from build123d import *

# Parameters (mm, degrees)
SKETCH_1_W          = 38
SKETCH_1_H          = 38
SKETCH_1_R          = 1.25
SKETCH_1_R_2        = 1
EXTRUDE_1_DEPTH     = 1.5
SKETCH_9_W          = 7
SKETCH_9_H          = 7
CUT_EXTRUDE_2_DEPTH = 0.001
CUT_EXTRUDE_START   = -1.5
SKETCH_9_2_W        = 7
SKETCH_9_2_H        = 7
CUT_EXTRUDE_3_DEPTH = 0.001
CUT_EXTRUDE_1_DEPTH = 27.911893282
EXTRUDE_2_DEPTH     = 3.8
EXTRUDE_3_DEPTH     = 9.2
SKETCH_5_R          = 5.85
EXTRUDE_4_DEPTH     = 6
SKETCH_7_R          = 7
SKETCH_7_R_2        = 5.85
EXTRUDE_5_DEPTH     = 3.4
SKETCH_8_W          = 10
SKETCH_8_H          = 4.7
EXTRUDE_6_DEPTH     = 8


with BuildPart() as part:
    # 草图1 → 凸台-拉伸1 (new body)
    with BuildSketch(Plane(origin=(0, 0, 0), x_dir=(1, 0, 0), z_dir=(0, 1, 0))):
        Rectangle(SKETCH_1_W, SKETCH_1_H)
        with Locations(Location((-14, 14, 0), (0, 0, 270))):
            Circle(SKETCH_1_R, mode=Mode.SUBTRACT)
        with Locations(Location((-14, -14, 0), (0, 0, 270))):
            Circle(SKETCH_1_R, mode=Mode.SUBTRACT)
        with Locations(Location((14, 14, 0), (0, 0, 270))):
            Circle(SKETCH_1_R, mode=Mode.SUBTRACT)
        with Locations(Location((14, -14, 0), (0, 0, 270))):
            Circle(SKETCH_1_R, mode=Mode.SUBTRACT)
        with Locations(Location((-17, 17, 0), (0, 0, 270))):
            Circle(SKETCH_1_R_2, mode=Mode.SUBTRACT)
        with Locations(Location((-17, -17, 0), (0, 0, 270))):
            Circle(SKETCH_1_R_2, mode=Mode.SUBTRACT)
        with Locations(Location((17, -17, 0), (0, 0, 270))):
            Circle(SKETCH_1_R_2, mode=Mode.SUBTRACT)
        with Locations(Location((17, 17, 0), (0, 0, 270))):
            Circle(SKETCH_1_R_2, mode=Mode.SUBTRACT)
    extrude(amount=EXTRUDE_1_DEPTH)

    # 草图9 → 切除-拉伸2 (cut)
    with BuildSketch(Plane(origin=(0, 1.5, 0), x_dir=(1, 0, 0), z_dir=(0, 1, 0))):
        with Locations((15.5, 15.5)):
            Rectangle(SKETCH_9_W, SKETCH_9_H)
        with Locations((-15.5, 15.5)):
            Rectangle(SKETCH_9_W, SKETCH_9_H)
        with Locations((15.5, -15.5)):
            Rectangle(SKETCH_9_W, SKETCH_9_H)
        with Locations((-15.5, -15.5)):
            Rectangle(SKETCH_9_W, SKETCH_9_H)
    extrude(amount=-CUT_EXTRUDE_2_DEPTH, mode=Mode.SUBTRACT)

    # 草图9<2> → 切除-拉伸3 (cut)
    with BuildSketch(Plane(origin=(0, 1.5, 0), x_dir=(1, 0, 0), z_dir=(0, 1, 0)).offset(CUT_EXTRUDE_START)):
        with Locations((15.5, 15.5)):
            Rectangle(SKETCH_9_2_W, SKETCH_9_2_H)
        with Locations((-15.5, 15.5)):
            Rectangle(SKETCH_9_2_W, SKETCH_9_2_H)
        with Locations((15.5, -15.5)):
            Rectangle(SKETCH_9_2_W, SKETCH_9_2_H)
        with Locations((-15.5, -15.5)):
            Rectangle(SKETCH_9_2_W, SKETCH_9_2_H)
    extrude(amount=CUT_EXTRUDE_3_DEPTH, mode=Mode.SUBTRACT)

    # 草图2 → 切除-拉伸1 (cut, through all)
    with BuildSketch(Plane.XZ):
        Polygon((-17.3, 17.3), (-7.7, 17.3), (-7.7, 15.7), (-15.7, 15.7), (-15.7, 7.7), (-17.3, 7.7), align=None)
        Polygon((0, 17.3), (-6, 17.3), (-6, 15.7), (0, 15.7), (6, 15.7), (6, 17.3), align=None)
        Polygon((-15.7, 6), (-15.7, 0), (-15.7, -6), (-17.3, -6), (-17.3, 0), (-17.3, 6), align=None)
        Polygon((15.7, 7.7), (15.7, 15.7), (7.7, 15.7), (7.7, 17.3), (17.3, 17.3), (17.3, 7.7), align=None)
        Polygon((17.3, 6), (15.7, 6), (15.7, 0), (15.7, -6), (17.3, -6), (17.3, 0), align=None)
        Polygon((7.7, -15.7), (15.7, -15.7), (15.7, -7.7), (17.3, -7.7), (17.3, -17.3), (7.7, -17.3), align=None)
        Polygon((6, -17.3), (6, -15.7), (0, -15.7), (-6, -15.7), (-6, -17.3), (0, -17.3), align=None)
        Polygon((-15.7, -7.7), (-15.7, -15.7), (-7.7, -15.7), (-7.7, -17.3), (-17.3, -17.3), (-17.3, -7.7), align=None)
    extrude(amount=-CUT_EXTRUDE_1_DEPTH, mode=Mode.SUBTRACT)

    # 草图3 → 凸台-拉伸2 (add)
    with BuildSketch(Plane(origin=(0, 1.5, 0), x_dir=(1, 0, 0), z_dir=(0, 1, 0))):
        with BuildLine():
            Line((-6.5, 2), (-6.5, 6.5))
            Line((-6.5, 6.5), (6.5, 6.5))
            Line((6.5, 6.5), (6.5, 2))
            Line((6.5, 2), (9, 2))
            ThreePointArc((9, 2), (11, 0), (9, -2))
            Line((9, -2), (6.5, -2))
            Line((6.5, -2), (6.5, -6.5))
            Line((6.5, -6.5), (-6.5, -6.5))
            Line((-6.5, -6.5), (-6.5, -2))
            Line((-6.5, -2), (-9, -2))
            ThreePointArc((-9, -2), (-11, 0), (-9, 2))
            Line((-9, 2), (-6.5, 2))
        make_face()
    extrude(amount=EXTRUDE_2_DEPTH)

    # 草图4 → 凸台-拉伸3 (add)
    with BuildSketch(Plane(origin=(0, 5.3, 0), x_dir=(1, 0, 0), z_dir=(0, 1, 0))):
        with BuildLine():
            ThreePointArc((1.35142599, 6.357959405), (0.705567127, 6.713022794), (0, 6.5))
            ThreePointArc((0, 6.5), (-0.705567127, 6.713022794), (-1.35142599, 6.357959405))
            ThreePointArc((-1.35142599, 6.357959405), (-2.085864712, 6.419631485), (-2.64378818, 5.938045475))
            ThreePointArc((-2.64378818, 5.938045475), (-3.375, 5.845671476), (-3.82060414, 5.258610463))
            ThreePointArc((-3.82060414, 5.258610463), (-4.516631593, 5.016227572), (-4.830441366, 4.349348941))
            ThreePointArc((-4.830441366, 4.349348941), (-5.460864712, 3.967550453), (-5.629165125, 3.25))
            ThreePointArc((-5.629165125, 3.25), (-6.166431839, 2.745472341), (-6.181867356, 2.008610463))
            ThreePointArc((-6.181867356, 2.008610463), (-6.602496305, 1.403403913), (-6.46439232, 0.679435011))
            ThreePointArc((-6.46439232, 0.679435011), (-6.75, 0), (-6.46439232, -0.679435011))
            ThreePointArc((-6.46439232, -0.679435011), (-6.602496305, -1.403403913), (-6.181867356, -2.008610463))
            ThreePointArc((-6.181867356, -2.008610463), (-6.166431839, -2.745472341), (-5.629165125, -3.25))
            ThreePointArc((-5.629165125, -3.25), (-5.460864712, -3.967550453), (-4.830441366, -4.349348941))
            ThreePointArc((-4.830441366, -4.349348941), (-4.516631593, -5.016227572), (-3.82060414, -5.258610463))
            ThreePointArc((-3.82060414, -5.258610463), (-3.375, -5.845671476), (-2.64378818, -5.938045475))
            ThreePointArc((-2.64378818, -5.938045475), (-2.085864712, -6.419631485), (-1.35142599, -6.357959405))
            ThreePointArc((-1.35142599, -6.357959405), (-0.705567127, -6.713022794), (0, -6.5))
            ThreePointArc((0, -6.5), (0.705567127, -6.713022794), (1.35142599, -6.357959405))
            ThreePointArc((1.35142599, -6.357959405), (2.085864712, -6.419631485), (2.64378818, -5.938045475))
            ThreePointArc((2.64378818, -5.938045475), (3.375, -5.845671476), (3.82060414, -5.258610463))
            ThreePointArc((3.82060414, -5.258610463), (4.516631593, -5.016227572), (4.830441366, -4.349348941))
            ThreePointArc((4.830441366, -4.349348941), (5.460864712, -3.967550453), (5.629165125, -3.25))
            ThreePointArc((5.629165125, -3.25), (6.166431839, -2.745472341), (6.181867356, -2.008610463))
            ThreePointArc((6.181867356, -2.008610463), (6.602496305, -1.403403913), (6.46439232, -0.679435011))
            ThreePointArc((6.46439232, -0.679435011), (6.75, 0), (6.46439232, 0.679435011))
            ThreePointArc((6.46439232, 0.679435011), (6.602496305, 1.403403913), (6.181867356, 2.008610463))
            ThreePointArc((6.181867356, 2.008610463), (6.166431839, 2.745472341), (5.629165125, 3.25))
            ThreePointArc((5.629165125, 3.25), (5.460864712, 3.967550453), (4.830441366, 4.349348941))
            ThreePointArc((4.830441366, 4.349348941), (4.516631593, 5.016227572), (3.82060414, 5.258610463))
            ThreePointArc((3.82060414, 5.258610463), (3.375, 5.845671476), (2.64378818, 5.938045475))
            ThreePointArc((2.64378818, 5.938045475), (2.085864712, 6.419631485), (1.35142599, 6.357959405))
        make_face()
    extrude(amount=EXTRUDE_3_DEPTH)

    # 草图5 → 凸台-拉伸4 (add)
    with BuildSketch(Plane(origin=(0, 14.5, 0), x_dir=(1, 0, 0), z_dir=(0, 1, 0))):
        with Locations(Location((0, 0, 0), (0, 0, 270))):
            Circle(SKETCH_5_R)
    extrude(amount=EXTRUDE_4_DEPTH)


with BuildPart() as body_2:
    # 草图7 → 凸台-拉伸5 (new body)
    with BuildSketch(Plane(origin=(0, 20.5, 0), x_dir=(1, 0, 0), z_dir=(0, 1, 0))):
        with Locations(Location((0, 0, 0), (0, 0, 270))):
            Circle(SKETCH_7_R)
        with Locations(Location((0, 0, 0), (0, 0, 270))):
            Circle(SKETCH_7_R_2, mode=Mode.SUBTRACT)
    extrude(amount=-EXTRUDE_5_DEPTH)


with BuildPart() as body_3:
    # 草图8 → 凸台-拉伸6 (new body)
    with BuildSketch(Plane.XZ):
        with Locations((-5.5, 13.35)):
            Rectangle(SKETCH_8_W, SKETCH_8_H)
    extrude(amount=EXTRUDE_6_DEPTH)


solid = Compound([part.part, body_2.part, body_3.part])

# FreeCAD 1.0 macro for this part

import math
import FreeCAD as App
import Part
import Sketcher
from FreeCAD import Vector

doc = App.newDocument("Part")
body = doc.addObject("PartDesign::Body", "Body")

sketch1 = body.newObject("Sketcher::SketchObject", "Sketch")
sketch1.AttachmentSupport = (doc.getObject("XZ_Plane"), [""])
sketch1.MapMode = "FlatFace"
sketch1.addGeometry(Part.LineSegment(Vector(-19, -19, 0), Vector(-19, 19, 0)), False)
sketch1.addGeometry(Part.LineSegment(Vector(-19, 19, 0), Vector(19, 19, 0)), False)
sketch1.addGeometry(Part.LineSegment(Vector(19, 19, 0), Vector(19, -19, 0)), False)
sketch1.addGeometry(Part.LineSegment(Vector(19, -19, 0), Vector(-19, -19, 0)), False)
sketch1.addGeometry(Part.Circle(Vector(-17, 17, 0), Vector(0, 0, 1), 1), False)
sketch1.addGeometry(Part.Circle(Vector(-14, 14, 0), Vector(0, 0, 1), 1.25), False)
sketch1.addGeometry(Part.Circle(Vector(17, 17, 0), Vector(0, 0, 1), 1), False)
sketch1.addGeometry(Part.Circle(Vector(14, 14, 0), Vector(0, 0, 1), 1.25), False)
sketch1.addGeometry(Part.Circle(Vector(-14, -14, 0), Vector(0, 0, 1), 1.25), False)
sketch1.addGeometry(Part.Circle(Vector(-17, -17, 0), Vector(0, 0, 1), 1), False)
sketch1.addGeometry(Part.Circle(Vector(14, -14, 0), Vector(0, 0, 1), 1.25), False)
sketch1.addGeometry(Part.Circle(Vector(17, -17, 0), Vector(0, 0, 1), 1), False)
sketch1.addConstraint(Sketcher.Constraint("Coincident", 0, 2, 1, 1))
sketch1.addConstraint(Sketcher.Constraint("Coincident", 1, 2, 2, 1))
sketch1.addConstraint(Sketcher.Constraint("Coincident", 2, 2, 3, 1))
sketch1.addConstraint(Sketcher.Constraint("Coincident", 3, 2, 0, 1))
sketch1.addConstraint(Sketcher.Constraint("Vertical", 0))
sketch1.addConstraint(Sketcher.Constraint("Horizontal", 1))
sketch1.addConstraint(Sketcher.Constraint("Vertical", 2))
sketch1.addConstraint(Sketcher.Constraint("Horizontal", 3))
sketch1.addConstraint(Sketcher.Constraint("Equal", 4, 6))
sketch1.addConstraint(Sketcher.Constraint("Equal", 5, 7))
sketch1.addConstraint(Sketcher.Constraint("Equal", 7, 8))
sketch1.addConstraint(Sketcher.Constraint("Equal", 6, 9))
sketch1.addConstraint(Sketcher.Constraint("Equal", 8, 10))
sketch1.addConstraint(Sketcher.Constraint("Equal", 9, 11))
sketch1.addConstraint(Sketcher.Constraint("Symmetric", 7, 3, 8, 3, -1, 1))
sketch1.addConstraint(Sketcher.Constraint("Symmetric", 6, 3, 9, 3, -1, 1))
sketch1.addConstraint(Sketcher.Constraint("Symmetric", 5, 3, 10, 3, -1, 1))
sketch1.addConstraint(Sketcher.Constraint("Symmetric", 4, 3, 11, 3, -1, 1))
sketch1.addConstraint(Sketcher.Constraint("Symmetric", 0, 2, 2, 2, -1, 1))
sketch1.addConstraint(Sketcher.Constraint("Symmetric", 4, 3, 6, 3, -2))
sketch1.addConstraint(Sketcher.Constraint("Symmetric", 5, 3, 7, 3, -2))
sketch1.addConstraint(Sketcher.Constraint("Equal", 3, 0))
sketch1.addConstraint(Sketcher.Constraint("Diameter", 4, 2.0))
sketch1.addConstraint(Sketcher.Constraint("Diameter", 5, 2.5))
sketch1.addConstraint(Sketcher.Constraint("DistanceX", 1, 1, 1, 2, 38.0))
sketch1.addConstraint(Sketcher.Constraint("DistanceX", 4, 3, -1, 1, 17.0))
sketch1.addConstraint(Sketcher.Constraint("DistanceY", -1, 1, 4, 3, 17.0))
sketch1.addConstraint(Sketcher.Constraint("DistanceX", 5, 3, -1, 1, 14.0))
sketch1.addConstraint(Sketcher.Constraint("DistanceY", -1, 1, 5, 3, 14.0))
pad1 = body.newObject("PartDesign::Pad", "Pad")
pad1.Profile = sketch1
pad1.Length = 1.5
pad1.Reversed = True

sketch2 = body.newObject("Sketcher::SketchObject", "Sketch001")
sketch2.AttachmentSupport = (doc.getObject("XZ_Plane"), [""])
sketch2.MapMode = "FlatFace"
sketch2.AttachmentOffset = App.Placement(Vector(0, 0, -1.5), App.Rotation())
sketch2.addGeometry(Part.LineSegment(Vector(12, -19, 0), Vector(12, -12, 0)), False)
sketch2.addGeometry(Part.LineSegment(Vector(12, -12, 0), Vector(19, -12, 0)), False)
sketch2.addGeometry(Part.LineSegment(Vector(19, -12, 0), Vector(19, -19, 0)), False)
sketch2.addGeometry(Part.LineSegment(Vector(19, -19, 0), Vector(12, -19, 0)), False)
sketch2.addGeometry(Part.LineSegment(Vector(-19, -19, 0), Vector(-19, -12, 0)), False)
sketch2.addGeometry(Part.LineSegment(Vector(-19, -12, 0), Vector(-12, -12, 0)), False)
sketch2.addGeometry(Part.LineSegment(Vector(-12, -12, 0), Vector(-12, -19, 0)), False)
sketch2.addGeometry(Part.LineSegment(Vector(-12, -19, 0), Vector(-19, -19, 0)), False)
sketch2.addGeometry(Part.LineSegment(Vector(12, 12, 0), Vector(12, 19, 0)), False)
sketch2.addGeometry(Part.LineSegment(Vector(12, 19, 0), Vector(19, 19, 0)), False)
sketch2.addGeometry(Part.LineSegment(Vector(19, 19, 0), Vector(19, 12, 0)), False)
sketch2.addGeometry(Part.LineSegment(Vector(19, 12, 0), Vector(12, 12, 0)), False)
sketch2.addGeometry(Part.LineSegment(Vector(-19, 12, 0), Vector(-19, 19, 0)), False)
sketch2.addGeometry(Part.LineSegment(Vector(-19, 19, 0), Vector(-12, 19, 0)), False)
sketch2.addGeometry(Part.LineSegment(Vector(-12, 19, 0), Vector(-12, 12, 0)), False)
sketch2.addGeometry(Part.LineSegment(Vector(-12, 12, 0), Vector(-19, 12, 0)), False)
sketch2.addConstraint(Sketcher.Constraint("Coincident", 0, 2, 1, 1))
sketch2.addConstraint(Sketcher.Constraint("Coincident", 1, 2, 2, 1))
sketch2.addConstraint(Sketcher.Constraint("Coincident", 2, 2, 3, 1))
sketch2.addConstraint(Sketcher.Constraint("Coincident", 3, 2, 0, 1))
sketch2.addConstraint(Sketcher.Constraint("Coincident", 4, 2, 5, 1))
sketch2.addConstraint(Sketcher.Constraint("Coincident", 5, 2, 6, 1))
sketch2.addConstraint(Sketcher.Constraint("Coincident", 6, 2, 7, 1))
sketch2.addConstraint(Sketcher.Constraint("Coincident", 7, 2, 4, 1))
sketch2.addConstraint(Sketcher.Constraint("Coincident", 8, 2, 9, 1))
sketch2.addConstraint(Sketcher.Constraint("Coincident", 9, 2, 10, 1))
sketch2.addConstraint(Sketcher.Constraint("Coincident", 10, 2, 11, 1))
sketch2.addConstraint(Sketcher.Constraint("Coincident", 11, 2, 8, 1))
sketch2.addConstraint(Sketcher.Constraint("Coincident", 12, 2, 13, 1))
sketch2.addConstraint(Sketcher.Constraint("Coincident", 13, 2, 14, 1))
sketch2.addConstraint(Sketcher.Constraint("Coincident", 14, 2, 15, 1))
sketch2.addConstraint(Sketcher.Constraint("Coincident", 15, 2, 12, 1))
sketch2.addConstraint(Sketcher.Constraint("Vertical", 0))
sketch2.addConstraint(Sketcher.Constraint("Horizontal", 1))
sketch2.addConstraint(Sketcher.Constraint("Vertical", 2))
sketch2.addConstraint(Sketcher.Constraint("Horizontal", 3))
sketch2.addConstraint(Sketcher.Constraint("Vertical", 4))
sketch2.addConstraint(Sketcher.Constraint("Horizontal", 5))
sketch2.addConstraint(Sketcher.Constraint("Vertical", 6))
sketch2.addConstraint(Sketcher.Constraint("Horizontal", 7))
sketch2.addConstraint(Sketcher.Constraint("Vertical", 8))
sketch2.addConstraint(Sketcher.Constraint("Horizontal", 9))
sketch2.addConstraint(Sketcher.Constraint("Vertical", 10))
sketch2.addConstraint(Sketcher.Constraint("Horizontal", 11))
sketch2.addConstraint(Sketcher.Constraint("Vertical", 12))
sketch2.addConstraint(Sketcher.Constraint("Horizontal", 13))
sketch2.addConstraint(Sketcher.Constraint("Vertical", 14))
sketch2.addConstraint(Sketcher.Constraint("Horizontal", 15))
sketch2.addConstraint(Sketcher.Constraint("Symmetric", 6, 2, 8, 2, -1, 1))
sketch2.addConstraint(Sketcher.Constraint("Symmetric", 4, 2, 10, 2, -1, 1))
sketch2.addConstraint(Sketcher.Constraint("Symmetric", 2, 2, 12, 2, -1, 1))
sketch2.addConstraint(Sketcher.Constraint("Symmetric", 0, 2, 14, 2, -1, 1))
sketch2.addConstraint(Sketcher.Constraint("Symmetric", 1, 2, 4, 2, -2))
sketch2.addConstraint(Sketcher.Constraint("Symmetric", 3, 2, 6, 2, -2))
sketch2.addConstraint(Sketcher.Constraint("Equal", 15, 0))
sketch2.addConstraint(Sketcher.Constraint("DistanceX", 1, 1, 1, 2, 7.0))
sketch2.addConstraint(Sketcher.Constraint("DistanceX", -1, 1, 0, 2, 12.0))
sketch2.addConstraint(Sketcher.Constraint("DistanceY", 0, 2, -1, 1, 12.0))
pocket1 = body.newObject("PartDesign::Pocket", "Pocket")
pocket1.Profile = sketch2
pocket1.Length = 0.001
pocket1.Reversed = True

sketch3 = body.newObject("Sketcher::SketchObject", "Sketch002")
sketch3.AttachmentSupport = (doc.getObject("XZ_Plane"), [""])
sketch3.MapMode = "FlatFace"
sketch3.addGeometry(Part.LineSegment(Vector(12, -19, 0), Vector(12, -12, 0)), False)
sketch3.addGeometry(Part.LineSegment(Vector(12, -12, 0), Vector(19, -12, 0)), False)
sketch3.addGeometry(Part.LineSegment(Vector(19, -12, 0), Vector(19, -19, 0)), False)
sketch3.addGeometry(Part.LineSegment(Vector(19, -19, 0), Vector(12, -19, 0)), False)
sketch3.addGeometry(Part.LineSegment(Vector(-19, -19, 0), Vector(-19, -12, 0)), False)
sketch3.addGeometry(Part.LineSegment(Vector(-19, -12, 0), Vector(-12, -12, 0)), False)
sketch3.addGeometry(Part.LineSegment(Vector(-12, -12, 0), Vector(-12, -19, 0)), False)
sketch3.addGeometry(Part.LineSegment(Vector(-12, -19, 0), Vector(-19, -19, 0)), False)
sketch3.addGeometry(Part.LineSegment(Vector(12, 12, 0), Vector(12, 19, 0)), False)
sketch3.addGeometry(Part.LineSegment(Vector(12, 19, 0), Vector(19, 19, 0)), False)
sketch3.addGeometry(Part.LineSegment(Vector(19, 19, 0), Vector(19, 12, 0)), False)
sketch3.addGeometry(Part.LineSegment(Vector(19, 12, 0), Vector(12, 12, 0)), False)
sketch3.addGeometry(Part.LineSegment(Vector(-19, 12, 0), Vector(-19, 19, 0)), False)
sketch3.addGeometry(Part.LineSegment(Vector(-19, 19, 0), Vector(-12, 19, 0)), False)
sketch3.addGeometry(Part.LineSegment(Vector(-12, 19, 0), Vector(-12, 12, 0)), False)
sketch3.addGeometry(Part.LineSegment(Vector(-12, 12, 0), Vector(-19, 12, 0)), False)
sketch3.addConstraint(Sketcher.Constraint("Coincident", 0, 2, 1, 1))
sketch3.addConstraint(Sketcher.Constraint("Coincident", 1, 2, 2, 1))
sketch3.addConstraint(Sketcher.Constraint("Coincident", 2, 2, 3, 1))
sketch3.addConstraint(Sketcher.Constraint("Coincident", 3, 2, 0, 1))
sketch3.addConstraint(Sketcher.Constraint("Coincident", 4, 2, 5, 1))
sketch3.addConstraint(Sketcher.Constraint("Coincident", 5, 2, 6, 1))
sketch3.addConstraint(Sketcher.Constraint("Coincident", 6, 2, 7, 1))
sketch3.addConstraint(Sketcher.Constraint("Coincident", 7, 2, 4, 1))
sketch3.addConstraint(Sketcher.Constraint("Coincident", 8, 2, 9, 1))
sketch3.addConstraint(Sketcher.Constraint("Coincident", 9, 2, 10, 1))
sketch3.addConstraint(Sketcher.Constraint("Coincident", 10, 2, 11, 1))
sketch3.addConstraint(Sketcher.Constraint("Coincident", 11, 2, 8, 1))
sketch3.addConstraint(Sketcher.Constraint("Coincident", 12, 2, 13, 1))
sketch3.addConstraint(Sketcher.Constraint("Coincident", 13, 2, 14, 1))
sketch3.addConstraint(Sketcher.Constraint("Coincident", 14, 2, 15, 1))
sketch3.addConstraint(Sketcher.Constraint("Coincident", 15, 2, 12, 1))
sketch3.addConstraint(Sketcher.Constraint("Vertical", 0))
sketch3.addConstraint(Sketcher.Constraint("Horizontal", 1))
sketch3.addConstraint(Sketcher.Constraint("Vertical", 2))
sketch3.addConstraint(Sketcher.Constraint("Horizontal", 3))
sketch3.addConstraint(Sketcher.Constraint("Vertical", 4))
sketch3.addConstraint(Sketcher.Constraint("Horizontal", 5))
sketch3.addConstraint(Sketcher.Constraint("Vertical", 6))
sketch3.addConstraint(Sketcher.Constraint("Horizontal", 7))
sketch3.addConstraint(Sketcher.Constraint("Vertical", 8))
sketch3.addConstraint(Sketcher.Constraint("Horizontal", 9))
sketch3.addConstraint(Sketcher.Constraint("Vertical", 10))
sketch3.addConstraint(Sketcher.Constraint("Horizontal", 11))
sketch3.addConstraint(Sketcher.Constraint("Vertical", 12))
sketch3.addConstraint(Sketcher.Constraint("Horizontal", 13))
sketch3.addConstraint(Sketcher.Constraint("Vertical", 14))
sketch3.addConstraint(Sketcher.Constraint("Horizontal", 15))
sketch3.addConstraint(Sketcher.Constraint("Symmetric", 6, 2, 8, 2, -1, 1))
sketch3.addConstraint(Sketcher.Constraint("Symmetric", 4, 2, 10, 2, -1, 1))
sketch3.addConstraint(Sketcher.Constraint("Symmetric", 2, 2, 12, 2, -1, 1))
sketch3.addConstraint(Sketcher.Constraint("Symmetric", 0, 2, 14, 2, -1, 1))
sketch3.addConstraint(Sketcher.Constraint("Symmetric", 1, 2, 4, 2, -2))
sketch3.addConstraint(Sketcher.Constraint("Symmetric", 3, 2, 6, 2, -2))
sketch3.addConstraint(Sketcher.Constraint("Equal", 15, 0))
sketch3.addConstraint(Sketcher.Constraint("DistanceX", 1, 1, 1, 2, 7.0))
sketch3.addConstraint(Sketcher.Constraint("DistanceX", -1, 1, 0, 2, 12.0))
sketch3.addConstraint(Sketcher.Constraint("DistanceY", 0, 2, -1, 1, 12.0))
pocket2 = body.newObject("PartDesign::Pocket", "Pocket001")
pocket2.Profile = sketch3
pocket2.Length = 0.001

sketch4 = body.newObject("Sketcher::SketchObject", "Sketch003")
sketch4.AttachmentSupport = (doc.getObject("XZ_Plane"), [""])
sketch4.MapMode = "FlatFace"
sketch4.addGeometry(Part.LineSegment(Vector(-7.7, 17.3, 0), Vector(-17.3, 17.3, 0)), False)
sketch4.addGeometry(Part.LineSegment(Vector(-17.3, 17.3, 0), Vector(-17.3, 7.7, 0)), False)
sketch4.addGeometry(Part.LineSegment(Vector(-17.3, 7.7, 0), Vector(-15.7, 7.7, 0)), False)
sketch4.addGeometry(Part.LineSegment(Vector(-15.7, 7.7, 0), Vector(-15.7, 15.7, 0)), False)
sketch4.addGeometry(Part.LineSegment(Vector(-15.7, 15.7, 0), Vector(-7.7, 15.7, 0)), False)
sketch4.addGeometry(Part.LineSegment(Vector(-7.7, 15.7, 0), Vector(-7.7, 17.3, 0)), False)
sketch4.addGeometry(Part.LineSegment(Vector(-6, 17.3, 0), Vector(-6, 15.7, 0)), False)
sketch4.addGeometry(Part.LineSegment(Vector(-6, 15.7, 0), Vector(6, 15.7, 0)), False)
sketch4.addGeometry(Part.LineSegment(Vector(6, 15.7, 0), Vector(6, 17.3, 0)), False)
sketch4.addGeometry(Part.LineSegment(Vector(6, 17.3, 0), Vector(-6, 17.3, 0)), False)
sketch4.addGeometry(Part.LineSegment(Vector(-15.7, -6, 0), Vector(-15.7, 6, 0)), False)
sketch4.addGeometry(Part.LineSegment(Vector(-15.7, 6, 0), Vector(-17.3, 6, 0)), False)
sketch4.addGeometry(Part.LineSegment(Vector(-17.3, 6, 0), Vector(-17.3, -6, 0)), False)
sketch4.addGeometry(Part.LineSegment(Vector(-17.3, -6, 0), Vector(-15.7, -6, 0)), False)
sketch4.addGeometry(Part.LineSegment(Vector(15.7, 15.7, 0), Vector(15.7, 7.7, 0)), False)
sketch4.addGeometry(Part.LineSegment(Vector(15.7, 7.7, 0), Vector(17.3, 7.7, 0)), False)
sketch4.addGeometry(Part.LineSegment(Vector(17.3, 7.7, 0), Vector(17.3, 17.3, 0)), False)
sketch4.addGeometry(Part.LineSegment(Vector(17.3, 17.3, 0), Vector(7.7, 17.3, 0)), False)
sketch4.addGeometry(Part.LineSegment(Vector(7.7, 17.3, 0), Vector(7.7, 15.7, 0)), False)
sketch4.addGeometry(Part.LineSegment(Vector(7.7, 15.7, 0), Vector(15.7, 15.7, 0)), False)
sketch4.addGeometry(Part.LineSegment(Vector(17.3, 6, 0), Vector(15.7, 6, 0)), False)
sketch4.addGeometry(Part.LineSegment(Vector(15.7, 6, 0), Vector(15.7, -6, 0)), False)
sketch4.addGeometry(Part.LineSegment(Vector(15.7, -6, 0), Vector(17.3, -6, 0)), False)
sketch4.addGeometry(Part.LineSegment(Vector(17.3, -6, 0), Vector(17.3, 6, 0)), False)
sketch4.addGeometry(Part.LineSegment(Vector(15.7, -15.7, 0), Vector(7.7, -15.7, 0)), False)
sketch4.addGeometry(Part.LineSegment(Vector(7.7, -15.7, 0), Vector(7.7, -17.3, 0)), False)
sketch4.addGeometry(Part.LineSegment(Vector(7.7, -17.3, 0), Vector(17.3, -17.3, 0)), False)
sketch4.addGeometry(Part.LineSegment(Vector(17.3, -17.3, 0), Vector(17.3, -7.7, 0)), False)
sketch4.addGeometry(Part.LineSegment(Vector(17.3, -7.7, 0), Vector(15.7, -7.7, 0)), False)
sketch4.addGeometry(Part.LineSegment(Vector(15.7, -7.7, 0), Vector(15.7, -15.7, 0)), False)
sketch4.addGeometry(Part.LineSegment(Vector(6, -17.3, 0), Vector(6, -15.7, 0)), False)
sketch4.addGeometry(Part.LineSegment(Vector(6, -15.7, 0), Vector(-6, -15.7, 0)), False)
sketch4.addGeometry(Part.LineSegment(Vector(-6, -15.7, 0), Vector(-6, -17.3, 0)), False)
sketch4.addGeometry(Part.LineSegment(Vector(-6, -17.3, 0), Vector(6, -17.3, 0)), False)
sketch4.addGeometry(Part.LineSegment(Vector(-15.7, -15.7, 0), Vector(-15.7, -7.7, 0)), False)
sketch4.addGeometry(Part.LineSegment(Vector(-15.7, -7.7, 0), Vector(-17.3, -7.7, 0)), False)
sketch4.addGeometry(Part.LineSegment(Vector(-17.3, -7.7, 0), Vector(-17.3, -17.3, 0)), False)
sketch4.addGeometry(Part.LineSegment(Vector(-17.3, -17.3, 0), Vector(-7.7, -17.3, 0)), False)
sketch4.addGeometry(Part.LineSegment(Vector(-7.7, -17.3, 0), Vector(-7.7, -15.7, 0)), False)
sketch4.addGeometry(Part.LineSegment(Vector(-7.7, -15.7, 0), Vector(-15.7, -15.7, 0)), False)
sketch4.addConstraint(Sketcher.Constraint("Coincident", 0, 2, 1, 1))
sketch4.addConstraint(Sketcher.Constraint("Coincident", 1, 2, 2, 1))
sketch4.addConstraint(Sketcher.Constraint("Coincident", 2, 2, 3, 1))
sketch4.addConstraint(Sketcher.Constraint("Coincident", 3, 2, 4, 1))
sketch4.addConstraint(Sketcher.Constraint("Coincident", 4, 2, 5, 1))
sketch4.addConstraint(Sketcher.Constraint("Coincident", 5, 2, 0, 1))
sketch4.addConstraint(Sketcher.Constraint("Coincident", 6, 2, 7, 1))
sketch4.addConstraint(Sketcher.Constraint("Coincident", 7, 2, 8, 1))
sketch4.addConstraint(Sketcher.Constraint("Coincident", 8, 2, 9, 1))
sketch4.addConstraint(Sketcher.Constraint("Coincident", 9, 2, 6, 1))
sketch4.addConstraint(Sketcher.Constraint("Coincident", 10, 2, 11, 1))
sketch4.addConstraint(Sketcher.Constraint("Coincident", 11, 2, 12, 1))
sketch4.addConstraint(Sketcher.Constraint("Coincident", 12, 2, 13, 1))
sketch4.addConstraint(Sketcher.Constraint("Coincident", 13, 2, 10, 1))
sketch4.addConstraint(Sketcher.Constraint("Coincident", 14, 2, 15, 1))
sketch4.addConstraint(Sketcher.Constraint("Coincident", 15, 2, 16, 1))
sketch4.addConstraint(Sketcher.Constraint("Coincident", 16, 2, 17, 1))
sketch4.addConstraint(Sketcher.Constraint("Coincident", 17, 2, 18, 1))
sketch4.addConstraint(Sketcher.Constraint("Coincident", 18, 2, 19, 1))
sketch4.addConstraint(Sketcher.Constraint("Coincident", 19, 2, 14, 1))
sketch4.addConstraint(Sketcher.Constraint("Coincident", 20, 2, 21, 1))
sketch4.addConstraint(Sketcher.Constraint("Coincident", 21, 2, 22, 1))
sketch4.addConstraint(Sketcher.Constraint("Coincident", 22, 2, 23, 1))
sketch4.addConstraint(Sketcher.Constraint("Coincident", 23, 2, 20, 1))
sketch4.addConstraint(Sketcher.Constraint("Coincident", 24, 2, 25, 1))
sketch4.addConstraint(Sketcher.Constraint("Coincident", 25, 2, 26, 1))
sketch4.addConstraint(Sketcher.Constraint("Coincident", 26, 2, 27, 1))
sketch4.addConstraint(Sketcher.Constraint("Coincident", 27, 2, 28, 1))
sketch4.addConstraint(Sketcher.Constraint("Coincident", 28, 2, 29, 1))
sketch4.addConstraint(Sketcher.Constraint("Coincident", 29, 2, 24, 1))
sketch4.addConstraint(Sketcher.Constraint("Coincident", 30, 2, 31, 1))
sketch4.addConstraint(Sketcher.Constraint("Coincident", 31, 2, 32, 1))
sketch4.addConstraint(Sketcher.Constraint("Coincident", 32, 2, 33, 1))
sketch4.addConstraint(Sketcher.Constraint("Coincident", 33, 2, 30, 1))
sketch4.addConstraint(Sketcher.Constraint("Coincident", 34, 2, 35, 1))
sketch4.addConstraint(Sketcher.Constraint("Coincident", 35, 2, 36, 1))
sketch4.addConstraint(Sketcher.Constraint("Coincident", 36, 2, 37, 1))
sketch4.addConstraint(Sketcher.Constraint("Coincident", 37, 2, 38, 1))
sketch4.addConstraint(Sketcher.Constraint("Coincident", 38, 2, 39, 1))
sketch4.addConstraint(Sketcher.Constraint("Coincident", 39, 2, 34, 1))
sketch4.addConstraint(Sketcher.Constraint("Horizontal", 0))
sketch4.addConstraint(Sketcher.Constraint("Vertical", 1))
sketch4.addConstraint(Sketcher.Constraint("Horizontal", 2))
sketch4.addConstraint(Sketcher.Constraint("Vertical", 3))
sketch4.addConstraint(Sketcher.Constraint("Horizontal", 4))
sketch4.addConstraint(Sketcher.Constraint("Vertical", 5))
sketch4.addConstraint(Sketcher.Constraint("Vertical", 6))
sketch4.addConstraint(Sketcher.Constraint("Horizontal", 7))
sketch4.addConstraint(Sketcher.Constraint("Vertical", 8))
sketch4.addConstraint(Sketcher.Constraint("Horizontal", 9))
sketch4.addConstraint(Sketcher.Constraint("Vertical", 10))
sketch4.addConstraint(Sketcher.Constraint("Horizontal", 11))
sketch4.addConstraint(Sketcher.Constraint("Vertical", 12))
sketch4.addConstraint(Sketcher.Constraint("Horizontal", 13))
sketch4.addConstraint(Sketcher.Constraint("Vertical", 14))
sketch4.addConstraint(Sketcher.Constraint("Horizontal", 15))
sketch4.addConstraint(Sketcher.Constraint("Vertical", 16))
sketch4.addConstraint(Sketcher.Constraint("Horizontal", 17))
sketch4.addConstraint(Sketcher.Constraint("Vertical", 18))
sketch4.addConstraint(Sketcher.Constraint("Horizontal", 19))
sketch4.addConstraint(Sketcher.Constraint("Horizontal", 20))
sketch4.addConstraint(Sketcher.Constraint("Vertical", 21))
sketch4.addConstraint(Sketcher.Constraint("Horizontal", 22))
sketch4.addConstraint(Sketcher.Constraint("Vertical", 23))
sketch4.addConstraint(Sketcher.Constraint("Horizontal", 24))
sketch4.addConstraint(Sketcher.Constraint("Vertical", 25))
sketch4.addConstraint(Sketcher.Constraint("Horizontal", 26))
sketch4.addConstraint(Sketcher.Constraint("Vertical", 27))
sketch4.addConstraint(Sketcher.Constraint("Horizontal", 28))
sketch4.addConstraint(Sketcher.Constraint("Vertical", 29))
sketch4.addConstraint(Sketcher.Constraint("Vertical", 30))
sketch4.addConstraint(Sketcher.Constraint("Horizontal", 31))
sketch4.addConstraint(Sketcher.Constraint("Vertical", 32))
sketch4.addConstraint(Sketcher.Constraint("Horizontal", 33))
sketch4.addConstraint(Sketcher.Constraint("Vertical", 34))
sketch4.addConstraint(Sketcher.Constraint("Horizontal", 35))
sketch4.addConstraint(Sketcher.Constraint("Vertical", 36))
sketch4.addConstraint(Sketcher.Constraint("Horizontal", 37))
sketch4.addConstraint(Sketcher.Constraint("Vertical", 38))
sketch4.addConstraint(Sketcher.Constraint("Horizontal", 39))
sketch4.addConstraint(Sketcher.Constraint("Symmetric", 13, 2, 20, 2, -1, 1))
sketch4.addConstraint(Sketcher.Constraint("Symmetric", 11, 2, 22, 2, -1, 1))
sketch4.addConstraint(Sketcher.Constraint("Symmetric", 4, 2, 24, 2, -1, 1))
sketch4.addConstraint(Sketcher.Constraint("Symmetric", 0, 2, 26, 2, -1, 1))
sketch4.addConstraint(Sketcher.Constraint("Symmetric", 2, 2, 28, 2, -1, 1))
sketch4.addConstraint(Sketcher.Constraint("Symmetric", 6, 2, 30, 2, -1, 1))
sketch4.addConstraint(Sketcher.Constraint("Symmetric", 8, 2, 32, 2, -1, 1))
sketch4.addConstraint(Sketcher.Constraint("Symmetric", 14, 2, 34, 2, -1, 1))
sketch4.addConstraint(Sketcher.Constraint("Symmetric", 16, 2, 36, 2, -1, 1))
sketch4.addConstraint(Sketcher.Constraint("Symmetric", 18, 2, 38, 2, -1, 1))
sketch4.addConstraint(Sketcher.Constraint("Symmetric", 2, 2, 14, 2, -2))
sketch4.addConstraint(Sketcher.Constraint("Symmetric", 0, 2, 16, 2, -2))
sketch4.addConstraint(Sketcher.Constraint("Symmetric", 4, 2, 18, 2, -2))
sketch4.addConstraint(Sketcher.Constraint("Horizontal", 4, 2, 6, 2))
sketch4.addConstraint(Sketcher.Constraint("Horizontal", 5, 2, 8, 2))
sketch4.addConstraint(Sketcher.Constraint("Horizontal", 11, 2, 20, 2))
sketch4.addConstraint(Sketcher.Constraint("Vertical", 3, 2, 10, 2))
sketch4.addConstraint(Sketcher.Constraint("Vertical", 1, 2, 11, 2))
sketch4.addConstraint(Sketcher.Constraint("Vertical", 8, 2, 30, 2))
sketch4.addConstraint(Sketcher.Constraint("Equal", 37, 1))
sketch4.addConstraint(Sketcher.Constraint("Equal", 39, 3))
sketch4.addConstraint(Sketcher.Constraint("Equal", 33, 10))
sketch4.addConstraint(Sketcher.Constraint("DistanceX", 4, 1, 4, 2, 8.0))
sketch4.addConstraint(Sketcher.Constraint("DistanceX", 7, 1, 7, 2, 12.0))
sketch4.addConstraint(Sketcher.Constraint("DistanceX", 0, 2, 0, 1, 9.6))
sketch4.addConstraint(Sketcher.Constraint("DistanceX", 0, 2, -1, 1, 17.3))
sketch4.addConstraint(Sketcher.Constraint("DistanceY", -1, 1, 0, 2, 17.3))
pocket3 = body.newObject("PartDesign::Pocket", "Pocket002")
pocket3.Profile = sketch4
pocket3.Type = "ThroughAll"

sketch5 = body.newObject("Sketcher::SketchObject", "Sketch004")
sketch5.AttachmentSupport = (doc.getObject("XZ_Plane"), [""])
sketch5.MapMode = "FlatFace"
sketch5.AttachmentOffset = App.Placement(Vector(0, 0, -1.5), App.Rotation())
sketch5.addGeometry(Part.LineSegment(Vector(-6.5, -6.5, 0), Vector(-6.5, -2, 0)), False)
sketch5.addGeometry(Part.LineSegment(Vector(-6.5, -2, 0), Vector(-9, -2, 0)), False)
sketch5.addGeometry(Part.ArcOfCircle(Part.Circle(Vector(-9, 0, 0), Vector(0, 0, 1), 2), math.radians(90), math.radians(270)), False)
sketch5.addGeometry(Part.LineSegment(Vector(-9, 2, 0), Vector(-6.5, 2, 0)), False)
sketch5.addGeometry(Part.LineSegment(Vector(-6.5, 2, 0), Vector(-6.5, 6.5, 0)), False)
sketch5.addGeometry(Part.LineSegment(Vector(-6.5, 6.5, 0), Vector(6.5, 6.5, 0)), False)
sketch5.addGeometry(Part.LineSegment(Vector(6.5, 6.5, 0), Vector(6.5, 2, 0)), False)
sketch5.addGeometry(Part.LineSegment(Vector(6.5, 2, 0), Vector(9, 2, 0)), False)
sketch5.addGeometry(Part.ArcOfCircle(Part.Circle(Vector(9, 0, 0), Vector(0, 0, 1), 2), math.radians(-90), math.radians(90)), False)
sketch5.addGeometry(Part.LineSegment(Vector(9, -2, 0), Vector(6.5, -2, 0)), False)
sketch5.addGeometry(Part.LineSegment(Vector(6.5, -2, 0), Vector(6.5, -6.5, 0)), False)
sketch5.addGeometry(Part.LineSegment(Vector(6.5, -6.5, 0), Vector(-6.5, -6.5, 0)), False)
sketch5.addConstraint(Sketcher.Constraint("Coincident", 0, 2, 1, 1))
sketch5.addConstraint(Sketcher.Constraint("Tangent", 1, 2, 2, 2))
sketch5.addConstraint(Sketcher.Constraint("Tangent", 2, 1, 3, 1))
sketch5.addConstraint(Sketcher.Constraint("Coincident", 3, 2, 4, 1))
sketch5.addConstraint(Sketcher.Constraint("Coincident", 4, 2, 5, 1))
sketch5.addConstraint(Sketcher.Constraint("Coincident", 5, 2, 6, 1))
sketch5.addConstraint(Sketcher.Constraint("Coincident", 6, 2, 7, 1))
sketch5.addConstraint(Sketcher.Constraint("Tangent", 7, 2, 8, 2))
sketch5.addConstraint(Sketcher.Constraint("Tangent", 8, 1, 9, 1))
sketch5.addConstraint(Sketcher.Constraint("Coincident", 9, 2, 10, 1))
sketch5.addConstraint(Sketcher.Constraint("Coincident", 10, 2, 11, 1))
sketch5.addConstraint(Sketcher.Constraint("Coincident", 11, 2, 0, 1))
sketch5.addConstraint(Sketcher.Constraint("Vertical", 0))
sketch5.addConstraint(Sketcher.Constraint("Horizontal", 1))
sketch5.addConstraint(Sketcher.Constraint("Horizontal", 3))
sketch5.addConstraint(Sketcher.Constraint("Vertical", 4))
sketch5.addConstraint(Sketcher.Constraint("Horizontal", 5))
sketch5.addConstraint(Sketcher.Constraint("Vertical", 6))
sketch5.addConstraint(Sketcher.Constraint("Horizontal", 7))
sketch5.addConstraint(Sketcher.Constraint("Horizontal", 9))
sketch5.addConstraint(Sketcher.Constraint("Vertical", 10))
sketch5.addConstraint(Sketcher.Constraint("Horizontal", 11))
sketch5.addConstraint(Sketcher.Constraint("Equal", 2, 8))
sketch5.addConstraint(Sketcher.Constraint("Symmetric", 2, 3, 8, 3, -1, 1))
sketch5.addConstraint(Sketcher.Constraint("Symmetric", 4, 2, 10, 2, -1, 1))
sketch5.addConstraint(Sketcher.Constraint("Symmetric", 3, 2, 6, 2, -2))
sketch5.addConstraint(Sketcher.Constraint("Vertical", 0, 2, 3, 2))
sketch5.addConstraint(Sketcher.Constraint("Radius", 2, 2.0))
sketch5.addConstraint(Sketcher.Constraint("DistanceX", 5, 1, 5, 2, 13.0))
sketch5.addConstraint(Sketcher.Constraint("DistanceX", 1, 2, 1, 1, 2.5))
sketch5.addConstraint(Sketcher.Constraint("DistanceY", 0, 1, 0, 2, 4.5))
pad2 = body.newObject("PartDesign::Pad", "Pad001")
pad2.Profile = sketch5
pad2.Length = 3.8
pad2.Reversed = True

sketch6 = body.newObject("Sketcher::SketchObject", "Sketch005")
sketch6.AttachmentSupport = (doc.getObject("XZ_Plane"), [""])
sketch6.MapMode = "FlatFace"
sketch6.AttachmentOffset = App.Placement(Vector(0, 0, -5.3), App.Rotation())
sketch6.addGeometry(Part.ArcOfCircle(Part.Circle(Vector(0.606165, -5.767271, 0), Vector(0, 0, 1), 0.950961), math.radians(-129.599928), math.radians(-38.400072)), False)
sketch6.addGeometry(Part.ArcOfCircle(Part.Circle(Vector(-0.606165, -5.767271, 0), Vector(0, 0, 1), 0.950961), math.radians(-141.599928), math.radians(-50.400072)), False)
sketch6.addGeometry(Part.ArcOfCircle(Part.Circle(Vector(-1.792002, -5.515214, 0), Vector(0, 0, 1), 0.950961), math.radians(-153.599928), math.radians(-62.400072)), False)
sketch6.addGeometry(Part.ArcOfCircle(Part.Circle(Vector(-2.899519, -5.022115, 0), Vector(0, 0, 1), 0.950961), math.radians(-165.599928), math.radians(-74.400072)), False)
sketch6.addGeometry(Part.ArcOfCircle(Part.Circle(Vector(-3.880314, -4.309526, 0), Vector(0, 0, 1), 0.950961), math.radians(-177.599928), math.radians(-86.400072)), False)
sketch6.addGeometry(Part.ArcOfCircle(Part.Circle(Vector(-4.691521, -3.408589, 0), Vector(0, 0, 1), 0.950961), math.radians(170.400072), math.radians(261.599928)), False)
sketch6.addGeometry(Part.ArcOfCircle(Part.Circle(Vector(-5.297685, -2.358682, 0), Vector(0, 0, 1), 0.950961), math.radians(158.400072), math.radians(249.599928)), False)
sketch6.addGeometry(Part.ArcOfCircle(Part.Circle(Vector(-5.672316, -1.205688, 0), Vector(0, 0, 1), 0.950961), math.radians(146.400072), math.radians(237.599928)), False)
sketch6.addGeometry(Part.ArcOfCircle(Part.Circle(Vector(-5.799039, 0, 0), Vector(0, 0, 1), 0.950961), math.radians(134.400072), math.radians(225.599928)), False)
sketch6.addGeometry(Part.ArcOfCircle(Part.Circle(Vector(-5.672316, 1.205688, 0), Vector(0, 0, 1), 0.950961), math.radians(122.400072), math.radians(213.599928)), False)
sketch6.addGeometry(Part.ArcOfCircle(Part.Circle(Vector(-5.297685, 2.358682, 0), Vector(0, 0, 1), 0.950961), math.radians(110.400072), math.radians(201.599928)), False)
sketch6.addGeometry(Part.ArcOfCircle(Part.Circle(Vector(-4.691521, 3.408589, 0), Vector(0, 0, 1), 0.950961), math.radians(98.400072), math.radians(189.599928)), False)
sketch6.addGeometry(Part.ArcOfCircle(Part.Circle(Vector(-3.880314, 4.309526, 0), Vector(0, 0, 1), 0.950961), math.radians(86.400072), math.radians(177.599928)), False)
sketch6.addGeometry(Part.ArcOfCircle(Part.Circle(Vector(-2.899519, 5.022115, 0), Vector(0, 0, 1), 0.950961), math.radians(74.400072), math.radians(165.599928)), False)
sketch6.addGeometry(Part.ArcOfCircle(Part.Circle(Vector(-1.792002, 5.515214, 0), Vector(0, 0, 1), 0.950961), math.radians(62.400072), math.radians(153.599928)), False)
sketch6.addGeometry(Part.ArcOfCircle(Part.Circle(Vector(-0.606165, 5.767271, 0), Vector(0, 0, 1), 0.950961), math.radians(50.400072), math.radians(141.599928)), False)
sketch6.addGeometry(Part.ArcOfCircle(Part.Circle(Vector(0.606165, 5.767271, 0), Vector(0, 0, 1), 0.950961), math.radians(38.400072), math.radians(129.599928)), False)
sketch6.addGeometry(Part.ArcOfCircle(Part.Circle(Vector(1.792002, 5.515214, 0), Vector(0, 0, 1), 0.950961), math.radians(26.400072), math.radians(117.599928)), False)
sketch6.addGeometry(Part.ArcOfCircle(Part.Circle(Vector(2.899519, 5.022115, 0), Vector(0, 0, 1), 0.950961), math.radians(14.400072), math.radians(105.599928)), False)
sketch6.addGeometry(Part.ArcOfCircle(Part.Circle(Vector(3.880314, 4.309526, 0), Vector(0, 0, 1), 0.950961), math.radians(2.400072), math.radians(93.599928)), False)
sketch6.addGeometry(Part.ArcOfCircle(Part.Circle(Vector(4.691521, 3.408589, 0), Vector(0, 0, 1), 0.950961), math.radians(-9.599928), math.radians(81.599928)), False)
sketch6.addGeometry(Part.ArcOfCircle(Part.Circle(Vector(5.297685, 2.358682, 0), Vector(0, 0, 1), 0.950961), math.radians(-21.599928), math.radians(69.599928)), False)
sketch6.addGeometry(Part.ArcOfCircle(Part.Circle(Vector(5.672316, 1.205688, 0), Vector(0, 0, 1), 0.950961), math.radians(-33.599928), math.radians(57.599928)), False)
sketch6.addGeometry(Part.ArcOfCircle(Part.Circle(Vector(5.799039, 0, 0), Vector(0, 0, 1), 0.950961), math.radians(-45.599928), math.radians(45.599928)), False)
sketch6.addGeometry(Part.ArcOfCircle(Part.Circle(Vector(5.672316, -1.205688, 0), Vector(0, 0, 1), 0.950961), math.radians(-57.599928), math.radians(33.599928)), False)
sketch6.addGeometry(Part.ArcOfCircle(Part.Circle(Vector(5.297685, -2.358682, 0), Vector(0, 0, 1), 0.950961), math.radians(-69.599928), math.radians(21.599928)), False)
sketch6.addGeometry(Part.ArcOfCircle(Part.Circle(Vector(4.691521, -3.408589, 0), Vector(0, 0, 1), 0.950961), math.radians(-81.599928), math.radians(9.599928)), False)
sketch6.addGeometry(Part.ArcOfCircle(Part.Circle(Vector(3.880314, -4.309526, 0), Vector(0, 0, 1), 0.950961), math.radians(-93.599928), math.radians(-2.400072)), False)
sketch6.addGeometry(Part.ArcOfCircle(Part.Circle(Vector(2.899519, -5.022115, 0), Vector(0, 0, 1), 0.950961), math.radians(-105.599928), math.radians(-14.400072)), False)
sketch6.addGeometry(Part.ArcOfCircle(Part.Circle(Vector(1.792002, -5.515214, 0), Vector(0, 0, 1), 0.950961), math.radians(-117.599928), math.radians(-26.400072)), False)
sketch6.addConstraint(Sketcher.Constraint("Coincident", 0, 1, 1, 2))
sketch6.addConstraint(Sketcher.Constraint("Coincident", 1, 1, 2, 2))
sketch6.addConstraint(Sketcher.Constraint("Coincident", 2, 1, 3, 2))
sketch6.addConstraint(Sketcher.Constraint("Coincident", 3, 1, 4, 2))
sketch6.addConstraint(Sketcher.Constraint("Coincident", 4, 1, 5, 2))
sketch6.addConstraint(Sketcher.Constraint("Coincident", 5, 1, 6, 2))
sketch6.addConstraint(Sketcher.Constraint("Coincident", 6, 1, 7, 2))
sketch6.addConstraint(Sketcher.Constraint("Coincident", 7, 1, 8, 2))
sketch6.addConstraint(Sketcher.Constraint("Coincident", 8, 1, 9, 2))
sketch6.addConstraint(Sketcher.Constraint("Coincident", 9, 1, 10, 2))
sketch6.addConstraint(Sketcher.Constraint("Coincident", 10, 1, 11, 2))
sketch6.addConstraint(Sketcher.Constraint("Coincident", 11, 1, 12, 2))
sketch6.addConstraint(Sketcher.Constraint("Coincident", 12, 1, 13, 2))
sketch6.addConstraint(Sketcher.Constraint("Coincident", 13, 1, 14, 2))
sketch6.addConstraint(Sketcher.Constraint("Coincident", 14, 1, 15, 2))
sketch6.addConstraint(Sketcher.Constraint("Coincident", 15, 1, 16, 2))
sketch6.addConstraint(Sketcher.Constraint("Coincident", 16, 1, 17, 2))
sketch6.addConstraint(Sketcher.Constraint("Coincident", 17, 1, 18, 2))
sketch6.addConstraint(Sketcher.Constraint("Coincident", 18, 1, 19, 2))
sketch6.addConstraint(Sketcher.Constraint("Coincident", 19, 1, 20, 2))
sketch6.addConstraint(Sketcher.Constraint("Coincident", 20, 1, 21, 2))
sketch6.addConstraint(Sketcher.Constraint("Coincident", 21, 1, 22, 2))
sketch6.addConstraint(Sketcher.Constraint("Coincident", 22, 1, 23, 2))
sketch6.addConstraint(Sketcher.Constraint("Coincident", 23, 1, 24, 2))
sketch6.addConstraint(Sketcher.Constraint("Coincident", 24, 1, 25, 2))
sketch6.addConstraint(Sketcher.Constraint("Coincident", 25, 1, 26, 2))
sketch6.addConstraint(Sketcher.Constraint("Coincident", 26, 1, 27, 2))
sketch6.addConstraint(Sketcher.Constraint("Coincident", 27, 1, 28, 2))
sketch6.addConstraint(Sketcher.Constraint("Coincident", 28, 1, 29, 2))
sketch6.addConstraint(Sketcher.Constraint("Coincident", 29, 1, 0, 2))
sketch6.addConstraint(Sketcher.Constraint("Equal", 0, 1))
sketch6.addConstraint(Sketcher.Constraint("Equal", 1, 2))
sketch6.addConstraint(Sketcher.Constraint("Equal", 2, 3))
sketch6.addConstraint(Sketcher.Constraint("Equal", 3, 4))
sketch6.addConstraint(Sketcher.Constraint("Equal", 4, 5))
sketch6.addConstraint(Sketcher.Constraint("Equal", 5, 6))
sketch6.addConstraint(Sketcher.Constraint("Equal", 6, 7))
sketch6.addConstraint(Sketcher.Constraint("Equal", 7, 8))
sketch6.addConstraint(Sketcher.Constraint("Equal", 8, 9))
sketch6.addConstraint(Sketcher.Constraint("Equal", 9, 10))
sketch6.addConstraint(Sketcher.Constraint("Equal", 10, 11))
sketch6.addConstraint(Sketcher.Constraint("Equal", 11, 12))
sketch6.addConstraint(Sketcher.Constraint("Equal", 12, 13))
sketch6.addConstraint(Sketcher.Constraint("Equal", 13, 14))
sketch6.addConstraint(Sketcher.Constraint("Equal", 14, 15))
sketch6.addConstraint(Sketcher.Constraint("Equal", 15, 16))
sketch6.addConstraint(Sketcher.Constraint("Equal", 16, 17))
sketch6.addConstraint(Sketcher.Constraint("Equal", 17, 18))
sketch6.addConstraint(Sketcher.Constraint("Equal", 18, 19))
sketch6.addConstraint(Sketcher.Constraint("Equal", 19, 20))
sketch6.addConstraint(Sketcher.Constraint("Equal", 20, 21))
sketch6.addConstraint(Sketcher.Constraint("Equal", 21, 22))
sketch6.addConstraint(Sketcher.Constraint("Equal", 22, 23))
sketch6.addConstraint(Sketcher.Constraint("Equal", 23, 24))
sketch6.addConstraint(Sketcher.Constraint("Equal", 24, 25))
sketch6.addConstraint(Sketcher.Constraint("Equal", 25, 26))
sketch6.addConstraint(Sketcher.Constraint("Equal", 26, 27))
sketch6.addConstraint(Sketcher.Constraint("Equal", 27, 28))
sketch6.addConstraint(Sketcher.Constraint("Equal", 28, 29))
sketch6.addConstraint(Sketcher.Constraint("Symmetric", 0, 3, 15, 3, -1, 1))
sketch6.addConstraint(Sketcher.Constraint("Symmetric", 1, 3, 16, 3, -1, 1))
sketch6.addConstraint(Sketcher.Constraint("Symmetric", 2, 3, 17, 3, -1, 1))
sketch6.addConstraint(Sketcher.Constraint("Symmetric", 3, 3, 18, 3, -1, 1))
sketch6.addConstraint(Sketcher.Constraint("Symmetric", 4, 3, 19, 3, -1, 1))
sketch6.addConstraint(Sketcher.Constraint("Symmetric", 5, 3, 20, 3, -1, 1))
sketch6.addConstraint(Sketcher.Constraint("Symmetric", 6, 3, 21, 3, -1, 1))
sketch6.addConstraint(Sketcher.Constraint("Symmetric", 7, 3, 22, 3, -1, 1))
sketch6.addConstraint(Sketcher.Constraint("Symmetric", 8, 3, 23, 3, -1, 1))
sketch6.addConstraint(Sketcher.Constraint("Symmetric", 9, 3, 24, 3, -1, 1))
sketch6.addConstraint(Sketcher.Constraint("Symmetric", 10, 3, 25, 3, -1, 1))
sketch6.addConstraint(Sketcher.Constraint("Symmetric", 11, 3, 26, 3, -1, 1))
sketch6.addConstraint(Sketcher.Constraint("Symmetric", 12, 3, 27, 3, -1, 1))
sketch6.addConstraint(Sketcher.Constraint("Symmetric", 13, 3, 28, 3, -1, 1))
sketch6.addConstraint(Sketcher.Constraint("Symmetric", 14, 3, 29, 3, -1, 1))
sketch6.addConstraint(Sketcher.Constraint("Symmetric", 0, 3, 1, 3, -2))
sketch6.addConstraint(Sketcher.Constraint("Symmetric", 14, 3, 17, 3, -2))
sketch6.addConstraint(Sketcher.Constraint("Symmetric", 13, 3, 18, 3, -2))
sketch6.addConstraint(Sketcher.Constraint("Symmetric", 12, 3, 19, 3, -2))
sketch6.addConstraint(Sketcher.Constraint("Symmetric", 11, 3, 20, 3, -2))
sketch6.addConstraint(Sketcher.Constraint("Symmetric", 10, 3, 21, 3, -2))
sketch6.addConstraint(Sketcher.Constraint("Symmetric", 9, 3, 22, 3, -2))
sketch6.addConstraint(Sketcher.Constraint("PointOnObject", 8, 3, -1))
sketch6.addConstraint(Sketcher.Constraint("DistanceY", 0, 1, -1, 1, 6.5))
sketch6.addConstraint(Sketcher.Constraint("DistanceY", 5, 1, -1, 1, 3.25))
sketch6.addConstraint(Sketcher.Constraint("Radius", 0, 0.950961))
sketch6.addConstraint(Sketcher.Constraint("DistanceX", 2, 3, -1, 1, 1.792002))
sketch6.addConstraint(Sketcher.Constraint("DistanceX", 5, 3, 3, 3, 1.792002))
sketch6.addConstraint(Sketcher.Constraint("DistanceX", 7, 3, 4, 3, 1.792002))
sketch6.addConstraint(Sketcher.Constraint("DistanceY", 2, 3, 3, 3, 0.493099))
sketch6.addConstraint(Sketcher.Constraint("DistanceY", 5, 3, 7, 3, 2.202901))
sketch6.addConstraint(Sketcher.Constraint("DistanceY", 0, 3, -1, 1, 5.767271))
sketch6.addConstraint(Sketcher.Constraint("DistanceX", 3, 3, -1, 1, 2.899519))
sketch6.addConstraint(Sketcher.Constraint("DistanceY", 5, 3, -1, 1, 3.408589))
sketch6.addConstraint(Sketcher.Constraint("DistanceY", 6, 3, -1, 1, 2.358682))
sketch6.addConstraint(Sketcher.Constraint("DistanceX", 8, 3, -1, 1, 5.799039))
sketch6.addConstraint(Sketcher.Constraint("DistanceY", 1, 1, -1, 1, 6.357959))
sketch6.addConstraint(Sketcher.Constraint("DistanceY", 3, 1, -1, 1, 5.25861))
sketch6.addConstraint(Sketcher.Constraint("DistanceX", 4, 1, -1, 1, 4.830441))
pad3 = body.newObject("PartDesign::Pad", "Pad002")
pad3.Profile = sketch6
pad3.Length = 9.2
pad3.Reversed = True

sketch7 = body.newObject("Sketcher::SketchObject", "Sketch006")
sketch7.AttachmentSupport = (doc.getObject("XZ_Plane"), [""])
sketch7.MapMode = "FlatFace"
sketch7.AttachmentOffset = App.Placement(Vector(0, 0, -14.5), App.Rotation())
sketch7.addGeometry(Part.Circle(Vector(0, 0, 0), Vector(0, 0, 1), 5.85), False)
sketch7.addConstraint(Sketcher.Constraint("Coincident", 0, 3, -1, 1))
sketch7.addConstraint(Sketcher.Constraint("Diameter", 0, 11.7))
pad4 = body.newObject("PartDesign::Pad", "Pad003")
pad4.Profile = sketch7
pad4.Length = 6
pad4.Reversed = True
body2 = doc.addObject("PartDesign::Body", "Body001")

sketch8 = body2.newObject("Sketcher::SketchObject", "Sketch007")
sketch8.AttachmentSupport = (doc.getObject("XZ_Plane001"), [""])
sketch8.MapMode = "FlatFace"
sketch8.AttachmentOffset = App.Placement(Vector(0, 0, -20.5), App.Rotation())
sketch8.addGeometry(Part.Circle(Vector(0, 0, 0), Vector(0, 0, 1), 7), False)
sketch8.addGeometry(Part.Circle(Vector(0, 0, 0), Vector(0, 0, 1), 5.85), False)
sketch8.addConstraint(Sketcher.Constraint("Coincident", 0, 3, -1, 1))
sketch8.addConstraint(Sketcher.Constraint("Coincident", 1, 3, -1, 1))
sketch8.addConstraint(Sketcher.Constraint("Diameter", 0, 14.0))
sketch8.addConstraint(Sketcher.Constraint("Diameter", 1, 11.7))
pad5 = body2.newObject("PartDesign::Pad", "Pad004")
pad5.Profile = sketch8
pad5.Length = 3.4
body3 = doc.addObject("PartDesign::Body", "Body002")

sketch9 = body3.newObject("Sketcher::SketchObject", "Sketch008")
sketch9.AttachmentSupport = (doc.getObject("XZ_Plane002"), [""])
sketch9.MapMode = "FlatFace"
sketch9.addGeometry(Part.LineSegment(Vector(-10.5, 15.7, 0), Vector(-10.5, 11, 0)), False)
sketch9.addGeometry(Part.LineSegment(Vector(-10.5, 11, 0), Vector(-0.5, 11, 0)), False)
sketch9.addGeometry(Part.LineSegment(Vector(-0.5, 11, 0), Vector(-0.5, 15.7, 0)), False)
sketch9.addGeometry(Part.LineSegment(Vector(-0.5, 15.7, 0), Vector(-10.5, 15.7, 0)), False)
sketch9.addConstraint(Sketcher.Constraint("Coincident", 0, 2, 1, 1))
sketch9.addConstraint(Sketcher.Constraint("Coincident", 1, 2, 2, 1))
sketch9.addConstraint(Sketcher.Constraint("Coincident", 2, 2, 3, 1))
sketch9.addConstraint(Sketcher.Constraint("Coincident", 3, 2, 0, 1))
sketch9.addConstraint(Sketcher.Constraint("Vertical", 0))
sketch9.addConstraint(Sketcher.Constraint("Horizontal", 1))
sketch9.addConstraint(Sketcher.Constraint("Vertical", 2))
sketch9.addConstraint(Sketcher.Constraint("Horizontal", 3))
sketch9.addConstraint(Sketcher.Constraint("DistanceX", 1, 1, 1, 2, 10.0))
sketch9.addConstraint(Sketcher.Constraint("DistanceY", 0, 2, 0, 1, 4.7))
sketch9.addConstraint(Sketcher.Constraint("DistanceY", -1, 1, 0, 2, 11.0))
sketch9.addConstraint(Sketcher.Constraint("DistanceX", 0, 2, -1, 1, 10.5))
pad6 = body3.newObject("PartDesign::Pad", "Pad005")
pad6.Profile = sketch9
pad6.Length = 8

doc.recompute()
